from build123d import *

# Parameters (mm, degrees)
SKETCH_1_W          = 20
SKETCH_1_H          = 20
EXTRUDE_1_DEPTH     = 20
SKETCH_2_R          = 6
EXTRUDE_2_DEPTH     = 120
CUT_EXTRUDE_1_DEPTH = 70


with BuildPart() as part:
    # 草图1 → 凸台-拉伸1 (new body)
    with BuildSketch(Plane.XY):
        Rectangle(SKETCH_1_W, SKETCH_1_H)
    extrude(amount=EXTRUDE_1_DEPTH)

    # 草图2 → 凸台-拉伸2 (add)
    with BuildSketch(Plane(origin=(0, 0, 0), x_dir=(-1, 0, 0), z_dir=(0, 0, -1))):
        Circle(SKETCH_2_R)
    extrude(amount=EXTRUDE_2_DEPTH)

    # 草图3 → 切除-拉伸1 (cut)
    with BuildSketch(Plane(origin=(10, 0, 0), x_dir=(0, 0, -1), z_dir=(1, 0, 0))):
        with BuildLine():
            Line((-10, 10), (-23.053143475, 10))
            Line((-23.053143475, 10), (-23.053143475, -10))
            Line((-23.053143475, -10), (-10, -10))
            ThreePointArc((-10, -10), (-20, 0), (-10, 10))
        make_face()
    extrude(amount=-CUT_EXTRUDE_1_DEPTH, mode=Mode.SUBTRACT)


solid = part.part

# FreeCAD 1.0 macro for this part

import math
import FreeCAD as App
import Part
import Sketcher
Q = App.Units.Quantity

doc = App.newDocument("Part")
body = doc.addObject("PartDesign::Body", "Body")

sketch1 = body.newObject("Sketcher::SketchObject", "Sketch")
sketch1.AttachmentSupport = (doc.getObject("XY_Plane"), [""])
sketch1.MapMode = "FlatFace"
sketch1.addGeometry([
    Part.LineSegment(App.Vector(-10, 10, 0), App.Vector(-10, -10, 0)),
    Part.LineSegment(App.Vector(-10, -10, 0), App.Vector(10, -10, 0)),
    Part.LineSegment(App.Vector(10, -10, 0), App.Vector(10, 10, 0)),
    Part.LineSegment(App.Vector(10, 10, 0), App.Vector(-10, 10, 0)),
], False)
sketch1.addConstraint([
    Sketcher.Constraint("Coincident", 0, 2, 1, 1),
    Sketcher.Constraint("Coincident", 1, 2, 2, 1),
    Sketcher.Constraint("Coincident", 2, 2, 3, 1),
    Sketcher.Constraint("Coincident", 3, 2, 0, 1),
    Sketcher.Constraint("Vertical", 0),
    Sketcher.Constraint("Horizontal", 1),
    Sketcher.Constraint("Vertical", 2),
    Sketcher.Constraint("Horizontal", 3),
    Sketcher.Constraint("Symmetric", 0, 2, 2, 2, -1, 1),
    Sketcher.Constraint("Equal", 3, 0),
    Sketcher.Constraint("DistanceX", 1, 1, 1, 2, Q("20 mm")),
])
pad1 = body.newObject("PartDesign::Pad", "Pad")
pad1.Profile = sketch1
pad1.Length = 20

sketch2 = body.newObject("Sketcher::SketchObject", "Sketch001")
sketch2.AttachmentSupport = (doc.getObject("XY_Plane"), [""])
sketch2.MapMode = "FlatFace"
sketch2.addGeometry(Part.Circle(App.Vector(0, 0, 0), App.Vector(0, 0, 1), 6), False)
sketch2.addConstraint([
    Sketcher.Constraint("Coincident", 0, 3, -1, 1),
    Sketcher.Constraint("Diameter", 0, Q("12 mm")),
])
pad2 = body.newObject("PartDesign::Pad", "Pad001")
pad2.Profile = sketch2
pad2.Length = 120
pad2.Reversed = True

sketch3 = body.newObject("Sketcher::SketchObject", "Sketch002")
sketch3.AttachmentSupport = (doc.getObject("YZ_Plane"), [""])
sketch3.MapMode = "FlatFace"
sketch3.AttachmentOffset = App.Placement(App.Vector(0, 0, 10), App.Rotation())
sketch3.addGeometry([
    Part.LineSegment(App.Vector(10, 10, 0), App.Vector(10, 23, 0)),
    Part.LineSegment(App.Vector(10, 23, 0), App.Vector(-10, 23, 0)),
    Part.LineSegment(App.Vector(-10, 23, 0), App.Vector(-10, 10, 0)),
    Part.ArcOfCircle(Part.Circle(App.Vector(0, 10, 0), App.Vector(0, 0, 1), 10), math.radians(0), math.radians(180)),
], False)
sketch3.addConstraint([
    Sketcher.Constraint("Coincident", 0, 2, 1, 1),
    Sketcher.Constraint("Coincident", 1, 2, 2, 1),
    Sketcher.Constraint("Tangent", 2, 2, 3, 2),
    Sketcher.Constraint("Tangent", 3, 1, 0, 1),
    Sketcher.Constraint("Vertical", 0),
    Sketcher.Constraint("Horizontal", 1),
    Sketcher.Constraint("Vertical", 2),
    Sketcher.Constraint("PointOnObject", 3, 3, -2),
    Sketcher.Constraint("Radius", 3, Q("10 mm")),
    Sketcher.Constraint("DistanceY", -1, 1, 3, 3, Q("10 mm")),
    Sketcher.Constraint("DistanceY", 0, 1, 0, 2, Q("13.053143 mm")),
])
pocket1 = body.newObject("PartDesign::Pocket", "Pocket")
pocket1.Profile = sketch3
pocket1.Length = 70

doc.recompute()
